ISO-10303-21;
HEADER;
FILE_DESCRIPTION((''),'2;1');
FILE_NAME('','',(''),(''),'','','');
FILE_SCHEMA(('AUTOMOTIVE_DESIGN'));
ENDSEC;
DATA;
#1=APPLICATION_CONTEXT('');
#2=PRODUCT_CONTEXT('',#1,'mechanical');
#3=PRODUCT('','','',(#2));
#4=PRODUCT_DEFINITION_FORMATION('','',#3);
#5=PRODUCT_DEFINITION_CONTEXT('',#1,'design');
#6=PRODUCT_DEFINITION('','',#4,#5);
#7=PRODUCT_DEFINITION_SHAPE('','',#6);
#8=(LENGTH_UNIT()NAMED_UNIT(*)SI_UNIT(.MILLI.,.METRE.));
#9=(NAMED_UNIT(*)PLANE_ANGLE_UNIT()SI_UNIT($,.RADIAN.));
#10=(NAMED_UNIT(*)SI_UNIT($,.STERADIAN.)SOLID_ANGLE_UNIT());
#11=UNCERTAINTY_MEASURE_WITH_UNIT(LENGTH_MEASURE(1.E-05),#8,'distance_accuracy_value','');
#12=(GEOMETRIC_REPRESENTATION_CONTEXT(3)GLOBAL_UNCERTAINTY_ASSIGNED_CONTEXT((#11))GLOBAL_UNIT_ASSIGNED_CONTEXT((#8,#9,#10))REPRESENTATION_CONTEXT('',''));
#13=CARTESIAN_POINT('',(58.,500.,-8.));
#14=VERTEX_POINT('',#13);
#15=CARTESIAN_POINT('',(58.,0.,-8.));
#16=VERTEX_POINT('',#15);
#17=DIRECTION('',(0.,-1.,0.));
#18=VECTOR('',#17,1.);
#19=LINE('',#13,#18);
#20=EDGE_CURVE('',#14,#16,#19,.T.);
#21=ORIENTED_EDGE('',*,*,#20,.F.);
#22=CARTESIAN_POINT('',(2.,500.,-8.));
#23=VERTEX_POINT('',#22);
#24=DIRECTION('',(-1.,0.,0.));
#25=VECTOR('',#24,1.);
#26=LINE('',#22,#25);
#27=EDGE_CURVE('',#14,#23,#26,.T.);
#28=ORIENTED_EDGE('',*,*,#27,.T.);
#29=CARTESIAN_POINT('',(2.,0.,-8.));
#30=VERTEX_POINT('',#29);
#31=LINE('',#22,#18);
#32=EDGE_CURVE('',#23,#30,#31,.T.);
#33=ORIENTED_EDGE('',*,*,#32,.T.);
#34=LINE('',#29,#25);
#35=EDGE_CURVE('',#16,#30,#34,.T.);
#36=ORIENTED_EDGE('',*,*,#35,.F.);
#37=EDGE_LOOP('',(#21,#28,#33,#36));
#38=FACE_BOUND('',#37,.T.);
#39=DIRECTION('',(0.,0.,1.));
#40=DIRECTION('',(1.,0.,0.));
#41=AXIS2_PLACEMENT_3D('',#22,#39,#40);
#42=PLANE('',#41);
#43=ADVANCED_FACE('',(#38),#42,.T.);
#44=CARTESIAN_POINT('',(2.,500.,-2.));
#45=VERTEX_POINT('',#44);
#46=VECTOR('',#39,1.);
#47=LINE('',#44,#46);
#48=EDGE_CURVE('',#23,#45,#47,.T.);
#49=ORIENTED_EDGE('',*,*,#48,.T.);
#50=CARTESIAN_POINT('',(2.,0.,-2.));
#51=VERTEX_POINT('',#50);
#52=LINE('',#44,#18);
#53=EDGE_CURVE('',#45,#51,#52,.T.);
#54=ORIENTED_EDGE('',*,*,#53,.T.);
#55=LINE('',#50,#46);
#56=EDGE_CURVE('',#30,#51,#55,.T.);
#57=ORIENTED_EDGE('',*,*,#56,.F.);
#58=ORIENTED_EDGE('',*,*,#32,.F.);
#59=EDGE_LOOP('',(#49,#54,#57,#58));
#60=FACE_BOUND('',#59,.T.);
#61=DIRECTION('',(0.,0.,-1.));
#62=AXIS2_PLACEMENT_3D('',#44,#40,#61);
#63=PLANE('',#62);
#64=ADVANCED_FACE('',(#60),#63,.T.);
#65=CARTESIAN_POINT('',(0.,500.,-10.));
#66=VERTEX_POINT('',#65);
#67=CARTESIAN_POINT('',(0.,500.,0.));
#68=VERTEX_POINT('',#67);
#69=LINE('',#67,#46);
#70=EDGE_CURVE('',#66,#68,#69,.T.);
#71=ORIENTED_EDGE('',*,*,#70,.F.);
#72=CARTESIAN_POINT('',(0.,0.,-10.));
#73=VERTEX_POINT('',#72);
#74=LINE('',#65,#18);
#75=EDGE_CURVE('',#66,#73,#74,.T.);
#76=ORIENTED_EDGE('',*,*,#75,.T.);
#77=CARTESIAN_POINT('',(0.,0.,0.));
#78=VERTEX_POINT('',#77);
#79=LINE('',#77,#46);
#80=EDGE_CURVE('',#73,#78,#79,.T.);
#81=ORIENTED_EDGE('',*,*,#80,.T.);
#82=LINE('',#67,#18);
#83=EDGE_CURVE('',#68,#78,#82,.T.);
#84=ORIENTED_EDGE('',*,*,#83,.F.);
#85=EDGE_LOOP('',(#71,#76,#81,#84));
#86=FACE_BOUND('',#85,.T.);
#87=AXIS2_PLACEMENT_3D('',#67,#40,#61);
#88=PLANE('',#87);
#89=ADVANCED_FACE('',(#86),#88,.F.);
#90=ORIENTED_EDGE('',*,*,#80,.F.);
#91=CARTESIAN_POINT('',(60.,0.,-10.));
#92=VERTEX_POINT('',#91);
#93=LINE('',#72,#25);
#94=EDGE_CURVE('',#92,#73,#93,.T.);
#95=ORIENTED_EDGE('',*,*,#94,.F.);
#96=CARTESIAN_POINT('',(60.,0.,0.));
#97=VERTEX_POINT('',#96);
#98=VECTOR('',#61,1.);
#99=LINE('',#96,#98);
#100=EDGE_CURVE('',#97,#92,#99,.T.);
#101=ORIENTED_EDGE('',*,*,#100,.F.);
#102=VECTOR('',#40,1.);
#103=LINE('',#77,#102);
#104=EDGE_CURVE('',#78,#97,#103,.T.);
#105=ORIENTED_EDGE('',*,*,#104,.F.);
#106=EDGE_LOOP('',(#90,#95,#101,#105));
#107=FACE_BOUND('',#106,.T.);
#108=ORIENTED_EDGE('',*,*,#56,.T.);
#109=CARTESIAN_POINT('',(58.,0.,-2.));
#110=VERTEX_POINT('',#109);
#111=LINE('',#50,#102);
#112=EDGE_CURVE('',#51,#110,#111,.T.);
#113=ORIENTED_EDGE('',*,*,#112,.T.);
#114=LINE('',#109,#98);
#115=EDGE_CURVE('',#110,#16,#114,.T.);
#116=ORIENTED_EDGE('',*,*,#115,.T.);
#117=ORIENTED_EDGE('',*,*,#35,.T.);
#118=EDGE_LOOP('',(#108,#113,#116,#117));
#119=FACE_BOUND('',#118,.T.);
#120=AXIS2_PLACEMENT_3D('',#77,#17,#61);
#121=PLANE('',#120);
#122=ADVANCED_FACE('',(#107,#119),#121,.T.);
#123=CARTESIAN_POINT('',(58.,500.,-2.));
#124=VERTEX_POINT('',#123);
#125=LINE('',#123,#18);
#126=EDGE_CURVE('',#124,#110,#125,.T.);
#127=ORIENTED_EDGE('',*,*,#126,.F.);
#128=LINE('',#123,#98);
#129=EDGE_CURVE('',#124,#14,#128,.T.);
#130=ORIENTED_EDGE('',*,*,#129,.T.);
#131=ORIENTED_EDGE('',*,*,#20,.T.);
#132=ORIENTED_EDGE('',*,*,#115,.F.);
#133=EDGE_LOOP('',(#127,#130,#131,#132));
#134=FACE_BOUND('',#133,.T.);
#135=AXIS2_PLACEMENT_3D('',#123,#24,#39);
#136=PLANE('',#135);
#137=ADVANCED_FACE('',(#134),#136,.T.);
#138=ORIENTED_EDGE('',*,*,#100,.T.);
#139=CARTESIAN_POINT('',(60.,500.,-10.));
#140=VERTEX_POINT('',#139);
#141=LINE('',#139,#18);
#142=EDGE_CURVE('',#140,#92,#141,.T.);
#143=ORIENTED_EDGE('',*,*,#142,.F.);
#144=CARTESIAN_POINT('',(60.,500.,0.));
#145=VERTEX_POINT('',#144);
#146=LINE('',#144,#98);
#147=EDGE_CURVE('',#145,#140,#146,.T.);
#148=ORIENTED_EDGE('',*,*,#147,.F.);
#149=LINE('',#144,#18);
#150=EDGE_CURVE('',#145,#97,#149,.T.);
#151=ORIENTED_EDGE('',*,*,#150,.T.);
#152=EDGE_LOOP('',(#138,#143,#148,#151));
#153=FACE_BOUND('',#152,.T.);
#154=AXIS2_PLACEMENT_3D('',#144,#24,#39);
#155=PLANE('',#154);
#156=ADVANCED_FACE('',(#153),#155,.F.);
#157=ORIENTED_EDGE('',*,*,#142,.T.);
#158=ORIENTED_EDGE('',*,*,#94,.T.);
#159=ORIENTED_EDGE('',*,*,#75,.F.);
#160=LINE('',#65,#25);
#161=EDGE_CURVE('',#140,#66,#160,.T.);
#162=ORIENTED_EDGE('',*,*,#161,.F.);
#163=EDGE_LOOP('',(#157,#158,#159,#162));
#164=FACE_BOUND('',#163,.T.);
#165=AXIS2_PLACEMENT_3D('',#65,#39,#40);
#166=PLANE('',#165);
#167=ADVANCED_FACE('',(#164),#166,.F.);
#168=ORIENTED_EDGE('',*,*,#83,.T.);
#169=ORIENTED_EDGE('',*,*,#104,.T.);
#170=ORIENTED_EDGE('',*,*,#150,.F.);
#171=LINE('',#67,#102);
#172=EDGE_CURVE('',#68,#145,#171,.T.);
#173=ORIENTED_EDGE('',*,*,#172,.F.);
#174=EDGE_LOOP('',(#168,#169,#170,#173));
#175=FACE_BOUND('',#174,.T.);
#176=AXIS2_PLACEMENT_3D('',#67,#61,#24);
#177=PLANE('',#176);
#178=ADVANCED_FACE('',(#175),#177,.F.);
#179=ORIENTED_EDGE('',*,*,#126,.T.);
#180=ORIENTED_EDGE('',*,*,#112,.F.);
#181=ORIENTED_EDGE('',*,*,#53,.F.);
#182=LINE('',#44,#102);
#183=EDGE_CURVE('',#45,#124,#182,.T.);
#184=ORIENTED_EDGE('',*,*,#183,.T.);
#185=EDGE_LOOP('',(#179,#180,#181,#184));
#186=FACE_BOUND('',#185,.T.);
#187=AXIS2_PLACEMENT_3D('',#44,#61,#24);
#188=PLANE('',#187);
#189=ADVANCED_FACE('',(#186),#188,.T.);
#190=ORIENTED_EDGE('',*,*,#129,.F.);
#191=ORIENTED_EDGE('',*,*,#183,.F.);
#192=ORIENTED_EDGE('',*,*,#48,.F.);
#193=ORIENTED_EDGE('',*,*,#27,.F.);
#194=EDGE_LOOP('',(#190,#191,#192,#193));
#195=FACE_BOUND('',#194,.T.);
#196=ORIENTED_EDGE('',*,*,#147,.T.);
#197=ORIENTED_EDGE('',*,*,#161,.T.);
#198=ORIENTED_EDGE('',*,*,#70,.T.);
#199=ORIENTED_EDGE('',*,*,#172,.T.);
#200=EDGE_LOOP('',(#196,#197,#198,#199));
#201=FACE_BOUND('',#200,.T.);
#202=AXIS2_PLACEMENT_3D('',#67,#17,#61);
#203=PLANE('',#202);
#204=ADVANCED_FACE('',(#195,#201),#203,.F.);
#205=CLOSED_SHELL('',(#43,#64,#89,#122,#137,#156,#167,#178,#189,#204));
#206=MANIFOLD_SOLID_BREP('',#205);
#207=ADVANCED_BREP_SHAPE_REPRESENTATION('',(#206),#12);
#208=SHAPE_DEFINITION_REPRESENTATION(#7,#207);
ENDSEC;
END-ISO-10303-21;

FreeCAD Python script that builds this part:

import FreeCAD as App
import Part
import Sketcher

V = App.Vector
Q = App.Units.Quantity

doc = App.newDocument("Part")
body = doc.addObject("PartDesign::Body", "Body")

# Sketch on XZ plane
sketch1 = doc.addObject("Sketcher::SketchObject", "Sketch")
body.addObject(sketch1)
sketch1.AttachmentSupport = (doc.XZ_Plane, [""])
sketch1.MapMode = "FlatFace"
sketch1.addGeometry([
    Part.LineSegment(V(0, -10, 0), V(0, 0, 0)),  # 0
    Part.LineSegment(V(0, 0, 0), V(60, 0, 0)),  # 1
    Part.LineSegment(V(60, 0, 0), V(60, -10, 0)),  # 2
    Part.LineSegment(V(60, -10, 0), V(0, -10, 0)),  # 3
    Part.LineSegment(V(58, -2, 0), V(2, -2, 0)),  # 4
    Part.LineSegment(V(2, -2, 0), V(2, -8, 0)),  # 5
    Part.LineSegment(V(2, -8, 0), V(58, -8, 0)),  # 6
    Part.LineSegment(V(58, -8, 0), V(58, -2, 0)),  # 7
], False)
sketch1.addConstraint([
    Sketcher.Constraint("Coincident", 0, 2, 1, 1),
    Sketcher.Constraint("Coincident", 1, 2, 2, 1),
    Sketcher.Constraint("Coincident", 2, 2, 3, 1),
    Sketcher.Constraint("Coincident", 3, 2, 0, 1),
    Sketcher.Constraint("Coincident", 4, 2, 5, 1),
    Sketcher.Constraint("Coincident", 5, 2, 6, 1),
    Sketcher.Constraint("Coincident", 6, 2, 7, 1),
    Sketcher.Constraint("Coincident", 7, 2, 4, 1),
    Sketcher.Constraint("Vertical", 0),
    Sketcher.Constraint("Horizontal", 1),
    Sketcher.Constraint("Vertical", 2),
    Sketcher.Constraint("Horizontal", 3),
    Sketcher.Constraint("Horizontal", 4),
    Sketcher.Constraint("Vertical", 5),
    Sketcher.Constraint("Horizontal", 6),
    Sketcher.Constraint("Vertical", 7),
    Sketcher.Constraint("Coincident", 0, 2, -1, 1),
    Sketcher.Constraint("DistanceX", 1, 1, 1, 2, Q("60 mm")),
    Sketcher.Constraint("DistanceX", 4, 2, 4, 1, Q("56 mm")),
    Sketcher.Constraint("DistanceY", 0, 1, 0, 2, Q("10 mm")),
    Sketcher.Constraint("DistanceY", 5, 2, 5, 1, Q("6 mm")),
    Sketcher.Constraint("DistanceX", -1, 1, 4, 2, Q("2 mm")),
    Sketcher.Constraint("DistanceY", 4, 2, -1, 1, Q("2 mm")),
])
pad1 = doc.addObject("PartDesign::Pad", "Pad")
body.addObject(pad1)
pad1.Profile = sketch1
pad1.Length = 500
pad1.Reversed = True

doc.recompute()
